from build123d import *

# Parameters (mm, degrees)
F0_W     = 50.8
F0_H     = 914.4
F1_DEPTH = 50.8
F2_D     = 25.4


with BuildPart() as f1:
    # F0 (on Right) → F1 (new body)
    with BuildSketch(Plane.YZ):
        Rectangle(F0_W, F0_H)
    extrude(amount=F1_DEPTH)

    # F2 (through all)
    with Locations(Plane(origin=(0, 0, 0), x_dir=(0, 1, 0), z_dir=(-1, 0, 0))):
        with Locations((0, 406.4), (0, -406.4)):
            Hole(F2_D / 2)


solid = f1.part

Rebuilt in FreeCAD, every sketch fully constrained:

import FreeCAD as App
import Part
import Sketcher
Q = App.Units.Quantity


def add_polygon(sketch, points):
    """Adds a closed chain of lines whose ends are joined by coincident constraints."""
    first, n = sketch.GeometryCount, len(points)
    for a, b in zip(points, points[1:] + points[:1]):
        sketch.addGeometry(Part.LineSegment(App.Vector(*a, 0), App.Vector(*b, 0)), False)
    for i in range(n):
        sketch.addConstraint(Sketcher.Constraint("Coincident", first + i, 2, first + (i + 1) % n, 1))

doc = App.newDocument("Part")
body = doc.addObject("PartDesign::Body", "Body")

# Sketch on YZ plane
sketch1 = doc.addObject("Sketcher::SketchObject", "Sketch")
body.addObject(sketch1)
sketch1.AttachmentSupport = (doc.YZ_Plane, [""])
sketch1.MapMode = "FlatFace"
add_polygon(sketch1, [(-25, 457), (-25, -457), (25, -457), (25, 457)])  # lines 0-3
sketch1.addConstraint(Sketcher.Constraint("Vertical", 0))
sketch1.addConstraint(Sketcher.Constraint("Horizontal", 1))
sketch1.addConstraint(Sketcher.Constraint("Vertical", 2))
sketch1.addConstraint(Sketcher.Constraint("Horizontal", 3))
sketch1.addConstraint(Sketcher.Constraint("Symmetric", 0, 2, 2, 2, -1, 1))
sketch1.addConstraint(Sketcher.Constraint("DistanceX", 1, 1, 1, 2, Q("2 in")))
sketch1.addConstraint(Sketcher.Constraint("DistanceY", 0, 2, 0, 1, Q("36 in")))
pad1 = doc.addObject("PartDesign::Pad", "Pad")
body.addObject(pad1)
pad1.Profile = sketch1
pad1.Length = Q("2 in")

# Sketch on YZ plane
sketch2 = doc.addObject("Sketcher::SketchObject", "Sketch001")
body.addObject(sketch2)
sketch2.AttachmentSupport = (doc.YZ_Plane, [""])
sketch2.MapMode = "FlatFace"
sketch2.addGeometry(Part.Circle(App.Vector(0, -406, 0), App.Vector(0, 0, 1), 13), False)
sketch2.addGeometry(Part.Circle(App.Vector(0, 406, 0), App.Vector(0, 0, 1), 13), False)
sketch2.addConstraint(Sketcher.Constraint("Equal", 0, 1))
sketch2.addConstraint(Sketcher.Constraint("Symmetric", 0, 3, 1, 3, -1, 1))
sketch2.addConstraint(Sketcher.Constraint("PointOnObject", 0, 3, -2))
sketch2.addConstraint(Sketcher.Constraint("Diameter", 0, Q("1 in")))
sketch2.addConstraint(Sketcher.Constraint("DistanceY", 0, 3, -1, 1, Q("16 in")))
doc.recompute()
hole = doc.addObject("PartDesign::Hole", "Hole")
body.addObject(hole)
hole.Profile = sketch2
hole.ThreadType = "None"
hole.Diameter = Q("1 in")
hole.DepthType = "ThroughAll"
hole.Reversed = True

doc.recompute()
